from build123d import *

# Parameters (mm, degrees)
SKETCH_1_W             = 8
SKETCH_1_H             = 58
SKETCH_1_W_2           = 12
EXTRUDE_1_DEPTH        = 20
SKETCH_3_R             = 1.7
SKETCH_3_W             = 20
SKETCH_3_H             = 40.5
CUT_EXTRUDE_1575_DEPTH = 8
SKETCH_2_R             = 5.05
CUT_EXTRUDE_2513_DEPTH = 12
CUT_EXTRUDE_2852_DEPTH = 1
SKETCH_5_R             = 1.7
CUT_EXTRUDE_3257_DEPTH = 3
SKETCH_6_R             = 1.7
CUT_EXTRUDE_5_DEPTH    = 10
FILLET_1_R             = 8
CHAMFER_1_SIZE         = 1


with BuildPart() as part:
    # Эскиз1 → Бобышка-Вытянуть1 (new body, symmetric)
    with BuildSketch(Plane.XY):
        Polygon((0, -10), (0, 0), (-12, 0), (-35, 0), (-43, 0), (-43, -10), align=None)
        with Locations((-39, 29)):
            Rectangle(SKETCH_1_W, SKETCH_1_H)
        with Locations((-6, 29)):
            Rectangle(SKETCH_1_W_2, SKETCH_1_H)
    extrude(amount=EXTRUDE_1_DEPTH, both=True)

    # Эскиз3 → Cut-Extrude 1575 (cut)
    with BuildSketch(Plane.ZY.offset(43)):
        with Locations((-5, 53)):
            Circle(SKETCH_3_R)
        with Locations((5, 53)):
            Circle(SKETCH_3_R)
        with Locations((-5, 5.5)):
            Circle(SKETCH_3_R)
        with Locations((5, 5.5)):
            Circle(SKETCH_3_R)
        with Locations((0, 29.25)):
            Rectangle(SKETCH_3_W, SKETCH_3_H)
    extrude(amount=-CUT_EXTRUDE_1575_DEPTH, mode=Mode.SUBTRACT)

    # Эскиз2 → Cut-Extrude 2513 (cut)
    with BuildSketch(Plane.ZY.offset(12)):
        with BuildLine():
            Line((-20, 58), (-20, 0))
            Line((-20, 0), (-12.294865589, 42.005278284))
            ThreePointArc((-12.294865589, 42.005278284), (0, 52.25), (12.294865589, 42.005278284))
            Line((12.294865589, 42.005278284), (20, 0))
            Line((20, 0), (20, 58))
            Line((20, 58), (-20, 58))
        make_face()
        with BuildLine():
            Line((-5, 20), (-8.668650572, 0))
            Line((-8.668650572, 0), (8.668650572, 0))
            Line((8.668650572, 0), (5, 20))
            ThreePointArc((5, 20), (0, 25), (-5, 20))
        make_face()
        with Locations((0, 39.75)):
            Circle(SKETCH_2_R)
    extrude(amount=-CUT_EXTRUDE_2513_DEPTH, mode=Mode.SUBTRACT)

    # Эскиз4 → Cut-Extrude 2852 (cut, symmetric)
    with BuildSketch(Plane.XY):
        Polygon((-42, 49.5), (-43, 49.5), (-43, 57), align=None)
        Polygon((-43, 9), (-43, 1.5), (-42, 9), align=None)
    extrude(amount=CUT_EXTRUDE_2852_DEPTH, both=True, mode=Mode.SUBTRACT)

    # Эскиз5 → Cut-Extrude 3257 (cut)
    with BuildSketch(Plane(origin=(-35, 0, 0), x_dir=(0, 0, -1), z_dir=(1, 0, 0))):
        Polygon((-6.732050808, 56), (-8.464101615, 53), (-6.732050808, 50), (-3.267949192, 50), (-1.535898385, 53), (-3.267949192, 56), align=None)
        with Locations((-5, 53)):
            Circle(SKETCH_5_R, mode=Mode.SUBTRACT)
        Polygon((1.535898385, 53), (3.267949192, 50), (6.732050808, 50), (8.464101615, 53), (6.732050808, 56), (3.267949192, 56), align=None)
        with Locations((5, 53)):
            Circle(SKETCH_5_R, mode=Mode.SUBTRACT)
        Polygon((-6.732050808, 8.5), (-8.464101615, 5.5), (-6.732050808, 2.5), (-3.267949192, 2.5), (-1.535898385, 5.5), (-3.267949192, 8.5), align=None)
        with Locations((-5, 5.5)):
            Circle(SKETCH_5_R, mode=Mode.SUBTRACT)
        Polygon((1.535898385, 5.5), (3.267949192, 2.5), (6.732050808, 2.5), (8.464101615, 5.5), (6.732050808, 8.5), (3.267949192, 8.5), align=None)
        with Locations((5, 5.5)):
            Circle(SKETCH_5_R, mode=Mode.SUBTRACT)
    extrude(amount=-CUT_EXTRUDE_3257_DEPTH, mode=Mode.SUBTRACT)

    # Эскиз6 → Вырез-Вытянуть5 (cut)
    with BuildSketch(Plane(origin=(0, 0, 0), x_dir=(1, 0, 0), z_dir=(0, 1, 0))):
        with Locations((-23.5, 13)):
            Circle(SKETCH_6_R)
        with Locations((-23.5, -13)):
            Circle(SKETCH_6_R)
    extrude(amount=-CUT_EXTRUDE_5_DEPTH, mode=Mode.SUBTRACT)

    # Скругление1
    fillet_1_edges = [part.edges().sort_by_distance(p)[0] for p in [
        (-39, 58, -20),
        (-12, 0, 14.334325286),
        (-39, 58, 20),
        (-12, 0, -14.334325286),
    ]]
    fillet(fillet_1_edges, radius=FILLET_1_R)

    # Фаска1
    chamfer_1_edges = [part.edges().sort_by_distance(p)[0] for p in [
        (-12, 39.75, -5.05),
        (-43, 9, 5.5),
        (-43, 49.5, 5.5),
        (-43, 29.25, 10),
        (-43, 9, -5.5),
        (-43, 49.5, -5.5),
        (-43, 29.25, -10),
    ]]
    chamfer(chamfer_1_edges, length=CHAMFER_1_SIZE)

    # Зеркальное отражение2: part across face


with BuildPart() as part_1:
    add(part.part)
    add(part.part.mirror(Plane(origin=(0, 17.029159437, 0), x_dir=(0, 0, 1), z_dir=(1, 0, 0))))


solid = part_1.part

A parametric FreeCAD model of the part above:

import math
import FreeCAD as App
import Part
import Sketcher

V = App.Vector
Q = App.Units.Quantity


def edges_at(feature, points):
    """Names of the edges that pass closest to the given points."""
    edges = feature.Shape.Edges
    near = lambda p: min(range(len(edges)), key=lambda i: edges[i].distToShape(Part.Vertex(*p))[0])
    return sorted({f"Edge{near(p) + 1}" for p in points})


def add_polygon(sketch, points):
    """Adds a closed chain of lines whose ends are joined by coincident constraints."""
    first, n = sketch.GeometryCount, len(points)
    for a, b in zip(points, points[1:] + points[:1]):
        sketch.addGeometry(Part.LineSegment(App.Vector(*a, 0), App.Vector(*b, 0)), False)
    for i in range(n):
        sketch.addConstraint(Sketcher.Constraint("Coincident", first + i, 2, first + (i + 1) % n, 1))

doc = App.newDocument("Part")
params = doc.addObject("Spreadsheet::Sheet", "Params")
for row, (alias, value) in enumerate([
    ("sketch1_width", "12 mm"),
    ("sketch1_width2", "23 mm"),
    ("sketch1_width3", "8 mm"),
    ("sketch1_height", "68 mm"),
    ("sketch1_height2", "58 mm"),
    ("pad1_length", "40 mm"),
    ("sketch2_diameter", "3.4 mm"),
    ("sketch2_height", "20 mm"),
    ("sketch2_width", "40.5 mm"),
    ("pocket1_length", "8 mm"),
    ("sketch3_radius", "5 mm"),
    ("sketch3_diameter", "10.1 mm"),
    ("sketch3_radius2", "12.5 mm"),
    ("sketch3_width", "58 mm"),
    ("sketch3_height", "40 mm"),
    ("pocket2_length", "12 mm"),
    ("sketch4_width", "1 mm"),
    ("sketch4_height", "7.5 mm"),
    ("pocket3_length", "2 mm"),
    ("sketch5_diameter", "3.4 mm"),
    ("pocket4_length", "3 mm"),
    ("sketch6_diameter", "3.4 mm"),
    ("pocket5_length", "10 mm"),
    ("fillet_radius", "8 mm"),
    ("chamfer_size", "1 mm"),
], start=1):
    params.set(f"A{row}", alias)
    params.set(f"B{row}", "=" + value)
    params.setAlias(f"B{row}", alias)

body = doc.addObject("PartDesign::Body", "Body")

sketch1 = body.newObject("Sketcher::SketchObject", "Sketch")
sketch1.AttachmentSupport = (doc.getObject("XY_Plane"), [""])
sketch1.MapMode = "FlatFace"
add_polygon(sketch1, [(0, -10), (0, 58), (-12, 58), (-12, 0), (-35, 0), (-35, 58), (-43, 58), (-43, -10)])
sketch1.addConstraint(Sketcher.Constraint("Vertical", 0))
sketch1.addConstraint(Sketcher.Constraint("Horizontal", 1))
sketch1.addConstraint(Sketcher.Constraint("Vertical", 2))
sketch1.addConstraint(Sketcher.Constraint("Horizontal", 3))
sketch1.addConstraint(Sketcher.Constraint("Vertical", 4))
sketch1.addConstraint(Sketcher.Constraint("Horizontal", 5))
sketch1.addConstraint(Sketcher.Constraint("Vertical", 6))
sketch1.addConstraint(Sketcher.Constraint("Horizontal", 7))
sketch1.addConstraint(Sketcher.Constraint("PointOnObject", 0, 2, -2))
sketch1.addConstraint(Sketcher.Constraint("PointOnObject", 2, 2, -1))
sketch1.addConstraint(Sketcher.Constraint("Horizontal", 1, 2, 4, 2))
sketch1.addConstraint(Sketcher.Constraint("DistanceX", 1, 2, 1, 1, 12.0))
sketch1.addConstraint(Sketcher.Constraint("DistanceX", 3, 2, 3, 1, 23.0))
sketch1.addConstraint(Sketcher.Constraint("DistanceX", 5, 2, 5, 1, 8.0))
sketch1.addConstraint(Sketcher.Constraint("DistanceY", 0, 1, 0, 2, 68.0))
sketch1.addConstraint(Sketcher.Constraint("DistanceY", 2, 2, 2, 1, 58.0))
sketch1.setExpression("Constraints[19]", "Params.sketch1_width")
sketch1.setExpression("Constraints[20]", "Params.sketch1_width2")
sketch1.setExpression("Constraints[21]", "Params.sketch1_width3")
sketch1.setExpression("Constraints[22]", "Params.sketch1_height")
sketch1.setExpression("Constraints[23]", "Params.sketch1_height2")
pad1 = body.newObject("PartDesign::Pad", "Pad")
pad1.Profile = sketch1
pad1.setExpression("Length", "Params.pad1_length")
pad1.Midplane = True

sketch2 = body.newObject("Sketcher::SketchObject", "Sketch001")
sketch2.AttachmentSupport = (doc.getObject("YZ_Plane"), [""])
sketch2.MapMode = "FlatFace"
sketch2.AttachmentOffset = App.Placement(V(0, 0, -43), App.Rotation())
sketch2.addGeometry(Part.Circle(V(53, -5, 0), V(0, 0, 1), 1.7), False)
sketch2.addGeometry(Part.Circle(V(53, 5, 0), V(0, 0, 1), 1.7), False)
sketch2.addGeometry(Part.Circle(V(5.5, -5, 0), V(0, 0, 1), 1.7), False)
sketch2.addGeometry(Part.Circle(V(5.5, 5, 0), V(0, 0, 1), 1.7), False)
add_polygon(sketch2, [(49.5, -10), (9, -10), (9, 10), (49.5, 10)])
sketch2.addConstraint(Sketcher.Constraint("Horizontal", 4))
sketch2.addConstraint(Sketcher.Constraint("Vertical", 5))
sketch2.addConstraint(Sketcher.Constraint("Horizontal", 6))
sketch2.addConstraint(Sketcher.Constraint("Vertical", 7))
sketch2.addConstraint(Sketcher.Constraint("Equal", 0, 1))
sketch2.addConstraint(Sketcher.Constraint("Equal", 1, 2))
sketch2.addConstraint(Sketcher.Constraint("Equal", 2, 3))
sketch2.addConstraint(Sketcher.Constraint("Symmetric", 0, 3, 1, 3, -1))
sketch2.addConstraint(Sketcher.Constraint("Symmetric", 2, 3, 3, 3, -1))
sketch2.addConstraint(Sketcher.Constraint("Horizontal", 0, 3, 2, 3))
sketch2.addConstraint(Sketcher.Constraint("Diameter", 0, 3.4))
sketch2.addConstraint(Sketcher.Constraint("DistanceY", 5, 1, 5, 2, 20.0))
sketch2.addConstraint(Sketcher.Constraint("DistanceX", 4, 2, 4, 1, 40.5))
sketch2.addConstraint(Sketcher.Constraint("DistanceX", -1, 1, 0, 3, 53.0))
sketch2.addConstraint(Sketcher.Constraint("DistanceY", 0, 3, -1, 1, 5.0))
sketch2.addConstraint(Sketcher.Constraint("DistanceX", -1, 1, 4, 2, 9.0))
sketch2.addConstraint(Sketcher.Constraint("DistanceY", 4, 2, -1, 1, 10.0))
sketch2.addConstraint(Sketcher.Constraint("DistanceX", 3, 3, 6, 2, 44.0))
sketch2.setExpression("Constraints[14]", "Params.sketch2_diameter")
sketch2.setExpression("Constraints[15]", "Params.sketch2_height")
sketch2.setExpression("Constraints[16]", "Params.sketch2_width")
pocket1 = body.newObject("PartDesign::Pocket", "Pocket")
pocket1.Profile = sketch2
pocket1.setExpression("Length", "Params.pocket1_length")
pocket1.Reversed = True

sketch3 = body.newObject("Sketcher::SketchObject", "Sketch002")
sketch3.AttachmentSupport = (doc.getObject("YZ_Plane"), [""])
sketch3.MapMode = "FlatFace"
sketch3.AttachmentOffset = App.Placement(V(0, 0, -12), App.Rotation())
sketch3.addGeometry(Part.LineSegment(V(58, -20, 0), V(0, -20, 0)), False)
sketch3.addGeometry(Part.LineSegment(V(0, -20, 0), V(42, -12, 0)), False)
sketch3.addGeometry(Part.ArcOfCircle(Part.Circle(V(40, 0, 0), V(0, 0, 1), 12), math.radians(-80), math.radians(80)), False)
sketch3.addGeometry(Part.LineSegment(V(42, 12, 0), V(0, 20, 0)), False)
sketch3.addGeometry(Part.LineSegment(V(0, 20, 0), V(58, 20, 0)), False)
sketch3.addGeometry(Part.LineSegment(V(58, 20, 0), V(58, -20, 0)), False)
sketch3.addGeometry(Part.LineSegment(V(20, -5, 0), V(0, -9, 0)), False)
sketch3.addGeometry(Part.LineSegment(V(0, -9, 0), V(0, 9, 0)), False)
sketch3.addGeometry(Part.LineSegment(V(0, 9, 0), V(20, 5, 0)), False)
sketch3.addGeometry(Part.ArcOfCircle(Part.Circle(V(20, 0, 0), V(0, 0, 1), 5), math.radians(-90), math.radians(90)), False)
sketch3.addGeometry(Part.Circle(V(40, 0, 0), V(0, 0, 1), 5), False)
sketch3.addConstraint(Sketcher.Constraint("Coincident", 0, 2, 1, 1))
sketch3.addConstraint(Sketcher.Constraint("Tangent", 1, 2, 2, 1))
sketch3.addConstraint(Sketcher.Constraint("Tangent", 2, 2, 3, 1))
sketch3.addConstraint(Sketcher.Constraint("Coincident", 3, 2, 4, 1))
sketch3.addConstraint(Sketcher.Constraint("Coincident", 4, 2, 5, 1))
sketch3.addConstraint(Sketcher.Constraint("Coincident", 5, 2, 0, 1))
sketch3.addConstraint(Sketcher.Constraint("Coincident", 6, 2, 7, 1))
sketch3.addConstraint(Sketcher.Constraint("Coincident", 7, 2, 8, 1))
sketch3.addConstraint(Sketcher.Constraint("Coincident", 8, 2, 9, 2))
sketch3.addConstraint(Sketcher.Constraint("Coincident", 9, 1, 6, 1))
sketch3.addConstraint(Sketcher.Constraint("Horizontal", 0))
sketch3.addConstraint(Sketcher.Constraint("Horizontal", 4))
sketch3.addConstraint(Sketcher.Constraint("Vertical", 5))
sketch3.addConstraint(Sketcher.Constraint("Vertical", 7))
sketch3.addConstraint(Sketcher.Constraint("Coincident", 10, 3, 2, 3))
sketch3.addConstraint(Sketcher.Constraint("Symmetric", 0, 2, 3, 2, -1, 1))
sketch3.addConstraint(Sketcher.Constraint("Symmetric", 6, 2, 7, 2, -1, 1))
sketch3.addConstraint(Sketcher.Constraint("Symmetric", 1, 2, 2, 2, -1))
sketch3.addConstraint(Sketcher.Constraint("Symmetric", 8, 2, 9, 1, -1))
sketch3.addConstraint(Sketcher.Constraint("Parallel", 1, 6))
sketch3.addConstraint(Sketcher.Constraint("Vertical", 9, 3, 8, 2))
sketch3.addConstraint(Sketcher.Constraint("Radius", 9, 5.0))
sketch3.addConstraint(Sketcher.Constraint("Diameter", 10, 10.1))
sketch3.addConstraint(Sketcher.Constraint("Radius", 2, 12.5))
sketch3.addConstraint(Sketcher.Constraint("DistanceX", 0, 2, 0, 1, 58.0))
sketch3.addConstraint(Sketcher.Constraint("DistanceY", 5, 2, 5, 1, 40.0))
sketch3.addConstraint(Sketcher.Constraint("DistanceX", -1, 1, 9, 3, 20.0))
sketch3.addConstraint(Sketcher.Constraint("DistanceX", -1, 1, 2, 3, 39.75))
sketch3.setExpression("Constraints[21]", "Params.sketch3_radius")
sketch3.setExpression("Constraints[22]", "Params.sketch3_diameter")
sketch3.setExpression("Constraints[23]", "Params.sketch3_radius2")
sketch3.setExpression("Constraints[24]", "Params.sketch3_width")
sketch3.setExpression("Constraints[25]", "Params.sketch3_height")
pocket2 = body.newObject("PartDesign::Pocket", "Pocket001")
pocket2.Profile = sketch3
pocket2.setExpression("Length", "Params.pocket2_length")
pocket2.Reversed = True

sketch4 = body.newObject("Sketcher::SketchObject", "Sketch003")
sketch4.AttachmentSupport = (doc.getObject("XY_Plane"), [""])
sketch4.MapMode = "FlatFace"
add_polygon(sketch4, [(-43, 49.5), (-42, 49.5), (-43, 57)])
add_polygon(sketch4, [(-43, 9), (-43, 1.5), (-42, 9)])
sketch4.addConstraint(Sketcher.Constraint("Horizontal", 0))
sketch4.addConstraint(Sketcher.Constraint("Vertical", 2))
sketch4.addConstraint(Sketcher.Constraint("Vertical", 3))
sketch4.addConstraint(Sketcher.Constraint("Horizontal", 5))
sketch4.addConstraint(Sketcher.Constraint("Vertical", 2, 2, 3, 2))
sketch4.addConstraint(Sketcher.Constraint("Vertical", 0, 2, 4, 2))
sketch4.addConstraint(Sketcher.Constraint("Equal", 2, 3))
sketch4.addConstraint(Sketcher.Constraint("DistanceX", 0, 1, 0, 2, 1.0))
sketch4.addConstraint(Sketcher.Constraint("DistanceY", 2, 2, 2, 1, 7.5))
sketch4.addConstraint(Sketcher.Constraint("DistanceX", 0, 2, -1, 1, 42.0))
sketch4.addConstraint(Sketcher.Constraint("DistanceY", -1, 1, 1, 2, 57.0))
sketch4.addConstraint(Sketcher.Constraint("DistanceY", -1, 1, 4, 2, 9.0))
sketch4.setExpression("Constraints[13]", "Params.sketch4_width")
sketch4.setExpression("Constraints[14]", "Params.sketch4_height")
pocket3 = body.newObject("PartDesign::Pocket", "Pocket002")
pocket3.Profile = sketch4
pocket3.setExpression("Length", "Params.pocket3_length")
pocket3.Midplane = True

sketch5 = body.newObject("Sketcher::SketchObject", "Sketch004")
sketch5.AttachmentSupport = (doc.getObject("YZ_Plane"), [""])
sketch5.MapMode = "FlatFace"
sketch5.AttachmentOffset = App.Placement(V(0, 0, -35), App.Rotation())
add_polygon(sketch5, [(56, 6.7), (53, 8.5), (50, 6.7), (50, 3.3), (53, 1.5), (56, 3.3)])
sketch5.addGeometry(Part.Circle(V(53, 5, 0), V(0, 0, 1), 1.7), False)
add_polygon(sketch5, [(53, -1.5), (50, -3.3), (50, -6.7), (53, -8.5), (56, -6.7), (56, -3.3)])
sketch5.addGeometry(Part.Circle(V(53, -5, 0), V(0, 0, 1), 1.7), False)
add_polygon(sketch5, [(8.5, 6.7), (5.5, 8.5), (2.5, 6.7), (2.5, 3.3), (5.5, 1.5), (8.5, 3.3)])
sketch5.addGeometry(Part.Circle(V(5.5, 5, 0), V(0, 0, 1), 1.7), False)
add_polygon(sketch5, [(5.5, -1.5), (2.5, -3.3), (2.5, -6.7), (5.5, -8.5), (8.5, -6.7), (8.5, -3.3)])
sketch5.addGeometry(Part.Circle(V(5.5, -5, 0), V(0, 0, 1), 1.7), False)
sketch5.addConstraint(Sketcher.Constraint("Vertical", 2))
sketch5.addConstraint(Sketcher.Constraint("Vertical", 5))
sketch5.addConstraint(Sketcher.Constraint("Vertical", 8))
sketch5.addConstraint(Sketcher.Constraint("Vertical", 11))
sketch5.addConstraint(Sketcher.Constraint("Vertical", 16))
sketch5.addConstraint(Sketcher.Constraint("Vertical", 19))
sketch5.addConstraint(Sketcher.Constraint("Vertical", 22))
sketch5.addConstraint(Sketcher.Constraint("Vertical", 25))
sketch5.addConstraint(Sketcher.Constraint("Equal", 6, 13))
sketch5.addConstraint(Sketcher.Constraint("Equal", 13, 20))
sketch5.addConstraint(Sketcher.Constraint("Equal", 20, 27))
sketch5.addConstraint(Sketcher.Constraint("Symmetric", 6, 3, 13, 3, -1))
sketch5.addConstraint(Sketcher.Constraint("Symmetric", 20, 3, 27, 3, -1))
sketch5.addConstraint(Sketcher.Constraint("Symmetric", 2, 2, 7, 2, -1))
sketch5.addConstraint(Sketcher.Constraint("Symmetric", 0, 2, 9, 2, -1))
sketch5.addConstraint(Sketcher.Constraint("Symmetric", 5, 2, 10, 2, -1))
sketch5.addConstraint(Sketcher.Constraint("Symmetric", 3, 2, 12, 2, -1))
sketch5.addConstraint(Sketcher.Constraint("Symmetric", 16, 2, 21, 2, -1))
sketch5.addConstraint(Sketcher.Constraint("Symmetric", 14, 2, 23, 2, -1))
sketch5.addConstraint(Sketcher.Constraint("Symmetric", 19, 2, 24, 2, -1))
sketch5.addConstraint(Sketcher.Constraint("Symmetric", 17, 2, 26, 2, -1))
sketch5.addConstraint(Sketcher.Constraint("Parallel", 0, 3))
sketch5.addConstraint(Sketcher.Constraint("Parallel", 1, 4))
sketch5.addConstraint(Sketcher.Constraint("Parallel", 4, 7))
sketch5.addConstraint(Sketcher.Constraint("Parallel", 3, 9))
sketch5.addConstraint(Sketcher.Constraint("Parallel", 9, 12))
sketch5.addConstraint(Sketcher.Constraint("Parallel", 12, 14))
sketch5.addConstraint(Sketcher.Constraint("Parallel", 10, 15))
sketch5.addConstraint(Sketcher.Constraint("Parallel", 14, 17))
sketch5.addConstraint(Sketcher.Constraint("Parallel", 15, 18))
sketch5.addConstraint(Sketcher.Constraint("Parallel", 17, 23))
sketch5.addConstraint(Sketcher.Constraint("Parallel", 23, 26))
sketch5.addConstraint(Sketcher.Constraint("Horizontal", 6, 3, 20, 3))
sketch5.addConstraint(Sketcher.Constraint("Horizontal", 2, 2, 4, 2))
sketch5.addConstraint(Sketcher.Constraint("Horizontal", 1, 2, 5, 2))
sketch5.addConstraint(Sketcher.Constraint("Horizontal", 0, 2, 14, 2))
sketch5.addConstraint(Sketcher.Constraint("Horizontal", 5, 2, 15, 2))
sketch5.addConstraint(Sketcher.Constraint("Horizontal", 4, 2, 16, 2))
sketch5.addConstraint(Sketcher.Constraint("Horizontal", 3, 2, 17, 2))
sketch5.addConstraint(Sketcher.Constraint("Horizontal", 16, 2, 18, 2))
sketch5.addConstraint(Sketcher.Constraint("Vertical", 13, 3, 0, 2))
sketch5.addConstraint(Sketcher.Constraint("Vertical", 27, 3, 14, 2))
sketch5.addConstraint(Sketcher.Constraint("Diameter", 6, 3.4))
sketch5.addConstraint(Sketcher.Constraint("Angle", 0, Q("150 deg")))
sketch5.addConstraint(Sketcher.Constraint("DistanceX", -1, 1, 6, 3, 53.0))
sketch5.addConstraint(Sketcher.Constraint("DistanceY", -1, 1, 6, 3, 5.0))
sketch5.addConstraint(Sketcher.Constraint("DistanceX", -1, 1, 1, 2, 50.0))
sketch5.addConstraint(Sketcher.Constraint("DistanceY", 8, 2, 2, 2, 10.0))
sketch5.addConstraint(Sketcher.Constraint("DistanceX", -1, 1, 20, 3, 5.5))
sketch5.addConstraint(Sketcher.Constraint("DistanceY", 2, 2, 2, 1, 3.464102))
sketch5.setExpression("Constraints[66]", "Params.sketch5_diameter")
pocket4 = body.newObject("PartDesign::Pocket", "Pocket003")
pocket4.Profile = sketch5
pocket4.setExpression("Length", "Params.pocket4_length")

sketch6 = body.newObject("Sketcher::SketchObject", "Sketch005")
sketch6.AttachmentSupport = (doc.getObject("XZ_Plane"), [""])
sketch6.MapMode = "FlatFace"
sketch6.addGeometry(Part.Circle(V(-23.5, -13, 0), V(0, 0, 1), 1.7), False)
sketch6.addGeometry(Part.Circle(V(-23.5, 13, 0), V(0, 0, 1), 1.7), False)
sketch6.addConstraint(Sketcher.Constraint("Equal", 0, 1))
sketch6.addConstraint(Sketcher.Constraint("Symmetric", 0, 3, 1, 3, -1))
sketch6.addConstraint(Sketcher.Constraint("Diameter", 0, 3.4))
sketch6.addConstraint(Sketcher.Constraint("DistanceY", 0, 3, -1, 1, 13.0))
sketch6.addConstraint(Sketcher.Constraint("DistanceX", 0, 3, -1, 1, 23.5))
sketch6.setExpression("Constraints[2]", "Params.sketch6_diameter")
pocket5 = body.newObject("PartDesign::Pocket", "Pocket004")
pocket5.Profile = sketch6
pocket5.setExpression("Length", "Params.pocket5_length")
pocket5.Reversed = True
doc.recompute()

fillet = body.newObject("PartDesign::Fillet", "Fillet")
fillet.Base = (pocket5, edges_at(pocket5, [
    (-39, 58, -20),
    (-12, 0, 14.334),
    (-39, 58, 20),
    (-12, 0, -14.334),
]))
fillet.setExpression("Radius", "Params.fillet_radius")
doc.recompute()

chamfer = body.newObject("PartDesign::Chamfer", "Chamfer")
chamfer.Base = (fillet, edges_at(fillet, [
    (-12, 39.75, -5.05),
    (-43, 9, 5.5),
    (-43, 49.5, 5.5),
    (-43, 29.25, 10),
    (-43, 9, -5.5),
    (-43, 49.5, -5.5),
    (-43, 29.25, -10),
]))
chamfer.setExpression("Size", "Params.chamfer_size")
body2 = doc.addObject("PartDesign::Body", "Body001")
doc.recompute()

body2.BaseFeature = body
doc.recompute()

mirroring = doc.addObject("Part::Mirroring", "Mirroring")
mirroring.Source = body
mirroring.Base = V(0, 17.029159, 0)
mirroring.Normal = V(1, 0, 0)
body3 = doc.addObject("PartDesign::Body", "Body002")
body3.BaseFeature = mirroring
boolean = body2.newObject("PartDesign::Boolean", "Boolean")
boolean.Type = "Fuse"
boolean.addObjects([body3])
doc.recompute()
mirroring.Visibility = False

doc.recompute()
